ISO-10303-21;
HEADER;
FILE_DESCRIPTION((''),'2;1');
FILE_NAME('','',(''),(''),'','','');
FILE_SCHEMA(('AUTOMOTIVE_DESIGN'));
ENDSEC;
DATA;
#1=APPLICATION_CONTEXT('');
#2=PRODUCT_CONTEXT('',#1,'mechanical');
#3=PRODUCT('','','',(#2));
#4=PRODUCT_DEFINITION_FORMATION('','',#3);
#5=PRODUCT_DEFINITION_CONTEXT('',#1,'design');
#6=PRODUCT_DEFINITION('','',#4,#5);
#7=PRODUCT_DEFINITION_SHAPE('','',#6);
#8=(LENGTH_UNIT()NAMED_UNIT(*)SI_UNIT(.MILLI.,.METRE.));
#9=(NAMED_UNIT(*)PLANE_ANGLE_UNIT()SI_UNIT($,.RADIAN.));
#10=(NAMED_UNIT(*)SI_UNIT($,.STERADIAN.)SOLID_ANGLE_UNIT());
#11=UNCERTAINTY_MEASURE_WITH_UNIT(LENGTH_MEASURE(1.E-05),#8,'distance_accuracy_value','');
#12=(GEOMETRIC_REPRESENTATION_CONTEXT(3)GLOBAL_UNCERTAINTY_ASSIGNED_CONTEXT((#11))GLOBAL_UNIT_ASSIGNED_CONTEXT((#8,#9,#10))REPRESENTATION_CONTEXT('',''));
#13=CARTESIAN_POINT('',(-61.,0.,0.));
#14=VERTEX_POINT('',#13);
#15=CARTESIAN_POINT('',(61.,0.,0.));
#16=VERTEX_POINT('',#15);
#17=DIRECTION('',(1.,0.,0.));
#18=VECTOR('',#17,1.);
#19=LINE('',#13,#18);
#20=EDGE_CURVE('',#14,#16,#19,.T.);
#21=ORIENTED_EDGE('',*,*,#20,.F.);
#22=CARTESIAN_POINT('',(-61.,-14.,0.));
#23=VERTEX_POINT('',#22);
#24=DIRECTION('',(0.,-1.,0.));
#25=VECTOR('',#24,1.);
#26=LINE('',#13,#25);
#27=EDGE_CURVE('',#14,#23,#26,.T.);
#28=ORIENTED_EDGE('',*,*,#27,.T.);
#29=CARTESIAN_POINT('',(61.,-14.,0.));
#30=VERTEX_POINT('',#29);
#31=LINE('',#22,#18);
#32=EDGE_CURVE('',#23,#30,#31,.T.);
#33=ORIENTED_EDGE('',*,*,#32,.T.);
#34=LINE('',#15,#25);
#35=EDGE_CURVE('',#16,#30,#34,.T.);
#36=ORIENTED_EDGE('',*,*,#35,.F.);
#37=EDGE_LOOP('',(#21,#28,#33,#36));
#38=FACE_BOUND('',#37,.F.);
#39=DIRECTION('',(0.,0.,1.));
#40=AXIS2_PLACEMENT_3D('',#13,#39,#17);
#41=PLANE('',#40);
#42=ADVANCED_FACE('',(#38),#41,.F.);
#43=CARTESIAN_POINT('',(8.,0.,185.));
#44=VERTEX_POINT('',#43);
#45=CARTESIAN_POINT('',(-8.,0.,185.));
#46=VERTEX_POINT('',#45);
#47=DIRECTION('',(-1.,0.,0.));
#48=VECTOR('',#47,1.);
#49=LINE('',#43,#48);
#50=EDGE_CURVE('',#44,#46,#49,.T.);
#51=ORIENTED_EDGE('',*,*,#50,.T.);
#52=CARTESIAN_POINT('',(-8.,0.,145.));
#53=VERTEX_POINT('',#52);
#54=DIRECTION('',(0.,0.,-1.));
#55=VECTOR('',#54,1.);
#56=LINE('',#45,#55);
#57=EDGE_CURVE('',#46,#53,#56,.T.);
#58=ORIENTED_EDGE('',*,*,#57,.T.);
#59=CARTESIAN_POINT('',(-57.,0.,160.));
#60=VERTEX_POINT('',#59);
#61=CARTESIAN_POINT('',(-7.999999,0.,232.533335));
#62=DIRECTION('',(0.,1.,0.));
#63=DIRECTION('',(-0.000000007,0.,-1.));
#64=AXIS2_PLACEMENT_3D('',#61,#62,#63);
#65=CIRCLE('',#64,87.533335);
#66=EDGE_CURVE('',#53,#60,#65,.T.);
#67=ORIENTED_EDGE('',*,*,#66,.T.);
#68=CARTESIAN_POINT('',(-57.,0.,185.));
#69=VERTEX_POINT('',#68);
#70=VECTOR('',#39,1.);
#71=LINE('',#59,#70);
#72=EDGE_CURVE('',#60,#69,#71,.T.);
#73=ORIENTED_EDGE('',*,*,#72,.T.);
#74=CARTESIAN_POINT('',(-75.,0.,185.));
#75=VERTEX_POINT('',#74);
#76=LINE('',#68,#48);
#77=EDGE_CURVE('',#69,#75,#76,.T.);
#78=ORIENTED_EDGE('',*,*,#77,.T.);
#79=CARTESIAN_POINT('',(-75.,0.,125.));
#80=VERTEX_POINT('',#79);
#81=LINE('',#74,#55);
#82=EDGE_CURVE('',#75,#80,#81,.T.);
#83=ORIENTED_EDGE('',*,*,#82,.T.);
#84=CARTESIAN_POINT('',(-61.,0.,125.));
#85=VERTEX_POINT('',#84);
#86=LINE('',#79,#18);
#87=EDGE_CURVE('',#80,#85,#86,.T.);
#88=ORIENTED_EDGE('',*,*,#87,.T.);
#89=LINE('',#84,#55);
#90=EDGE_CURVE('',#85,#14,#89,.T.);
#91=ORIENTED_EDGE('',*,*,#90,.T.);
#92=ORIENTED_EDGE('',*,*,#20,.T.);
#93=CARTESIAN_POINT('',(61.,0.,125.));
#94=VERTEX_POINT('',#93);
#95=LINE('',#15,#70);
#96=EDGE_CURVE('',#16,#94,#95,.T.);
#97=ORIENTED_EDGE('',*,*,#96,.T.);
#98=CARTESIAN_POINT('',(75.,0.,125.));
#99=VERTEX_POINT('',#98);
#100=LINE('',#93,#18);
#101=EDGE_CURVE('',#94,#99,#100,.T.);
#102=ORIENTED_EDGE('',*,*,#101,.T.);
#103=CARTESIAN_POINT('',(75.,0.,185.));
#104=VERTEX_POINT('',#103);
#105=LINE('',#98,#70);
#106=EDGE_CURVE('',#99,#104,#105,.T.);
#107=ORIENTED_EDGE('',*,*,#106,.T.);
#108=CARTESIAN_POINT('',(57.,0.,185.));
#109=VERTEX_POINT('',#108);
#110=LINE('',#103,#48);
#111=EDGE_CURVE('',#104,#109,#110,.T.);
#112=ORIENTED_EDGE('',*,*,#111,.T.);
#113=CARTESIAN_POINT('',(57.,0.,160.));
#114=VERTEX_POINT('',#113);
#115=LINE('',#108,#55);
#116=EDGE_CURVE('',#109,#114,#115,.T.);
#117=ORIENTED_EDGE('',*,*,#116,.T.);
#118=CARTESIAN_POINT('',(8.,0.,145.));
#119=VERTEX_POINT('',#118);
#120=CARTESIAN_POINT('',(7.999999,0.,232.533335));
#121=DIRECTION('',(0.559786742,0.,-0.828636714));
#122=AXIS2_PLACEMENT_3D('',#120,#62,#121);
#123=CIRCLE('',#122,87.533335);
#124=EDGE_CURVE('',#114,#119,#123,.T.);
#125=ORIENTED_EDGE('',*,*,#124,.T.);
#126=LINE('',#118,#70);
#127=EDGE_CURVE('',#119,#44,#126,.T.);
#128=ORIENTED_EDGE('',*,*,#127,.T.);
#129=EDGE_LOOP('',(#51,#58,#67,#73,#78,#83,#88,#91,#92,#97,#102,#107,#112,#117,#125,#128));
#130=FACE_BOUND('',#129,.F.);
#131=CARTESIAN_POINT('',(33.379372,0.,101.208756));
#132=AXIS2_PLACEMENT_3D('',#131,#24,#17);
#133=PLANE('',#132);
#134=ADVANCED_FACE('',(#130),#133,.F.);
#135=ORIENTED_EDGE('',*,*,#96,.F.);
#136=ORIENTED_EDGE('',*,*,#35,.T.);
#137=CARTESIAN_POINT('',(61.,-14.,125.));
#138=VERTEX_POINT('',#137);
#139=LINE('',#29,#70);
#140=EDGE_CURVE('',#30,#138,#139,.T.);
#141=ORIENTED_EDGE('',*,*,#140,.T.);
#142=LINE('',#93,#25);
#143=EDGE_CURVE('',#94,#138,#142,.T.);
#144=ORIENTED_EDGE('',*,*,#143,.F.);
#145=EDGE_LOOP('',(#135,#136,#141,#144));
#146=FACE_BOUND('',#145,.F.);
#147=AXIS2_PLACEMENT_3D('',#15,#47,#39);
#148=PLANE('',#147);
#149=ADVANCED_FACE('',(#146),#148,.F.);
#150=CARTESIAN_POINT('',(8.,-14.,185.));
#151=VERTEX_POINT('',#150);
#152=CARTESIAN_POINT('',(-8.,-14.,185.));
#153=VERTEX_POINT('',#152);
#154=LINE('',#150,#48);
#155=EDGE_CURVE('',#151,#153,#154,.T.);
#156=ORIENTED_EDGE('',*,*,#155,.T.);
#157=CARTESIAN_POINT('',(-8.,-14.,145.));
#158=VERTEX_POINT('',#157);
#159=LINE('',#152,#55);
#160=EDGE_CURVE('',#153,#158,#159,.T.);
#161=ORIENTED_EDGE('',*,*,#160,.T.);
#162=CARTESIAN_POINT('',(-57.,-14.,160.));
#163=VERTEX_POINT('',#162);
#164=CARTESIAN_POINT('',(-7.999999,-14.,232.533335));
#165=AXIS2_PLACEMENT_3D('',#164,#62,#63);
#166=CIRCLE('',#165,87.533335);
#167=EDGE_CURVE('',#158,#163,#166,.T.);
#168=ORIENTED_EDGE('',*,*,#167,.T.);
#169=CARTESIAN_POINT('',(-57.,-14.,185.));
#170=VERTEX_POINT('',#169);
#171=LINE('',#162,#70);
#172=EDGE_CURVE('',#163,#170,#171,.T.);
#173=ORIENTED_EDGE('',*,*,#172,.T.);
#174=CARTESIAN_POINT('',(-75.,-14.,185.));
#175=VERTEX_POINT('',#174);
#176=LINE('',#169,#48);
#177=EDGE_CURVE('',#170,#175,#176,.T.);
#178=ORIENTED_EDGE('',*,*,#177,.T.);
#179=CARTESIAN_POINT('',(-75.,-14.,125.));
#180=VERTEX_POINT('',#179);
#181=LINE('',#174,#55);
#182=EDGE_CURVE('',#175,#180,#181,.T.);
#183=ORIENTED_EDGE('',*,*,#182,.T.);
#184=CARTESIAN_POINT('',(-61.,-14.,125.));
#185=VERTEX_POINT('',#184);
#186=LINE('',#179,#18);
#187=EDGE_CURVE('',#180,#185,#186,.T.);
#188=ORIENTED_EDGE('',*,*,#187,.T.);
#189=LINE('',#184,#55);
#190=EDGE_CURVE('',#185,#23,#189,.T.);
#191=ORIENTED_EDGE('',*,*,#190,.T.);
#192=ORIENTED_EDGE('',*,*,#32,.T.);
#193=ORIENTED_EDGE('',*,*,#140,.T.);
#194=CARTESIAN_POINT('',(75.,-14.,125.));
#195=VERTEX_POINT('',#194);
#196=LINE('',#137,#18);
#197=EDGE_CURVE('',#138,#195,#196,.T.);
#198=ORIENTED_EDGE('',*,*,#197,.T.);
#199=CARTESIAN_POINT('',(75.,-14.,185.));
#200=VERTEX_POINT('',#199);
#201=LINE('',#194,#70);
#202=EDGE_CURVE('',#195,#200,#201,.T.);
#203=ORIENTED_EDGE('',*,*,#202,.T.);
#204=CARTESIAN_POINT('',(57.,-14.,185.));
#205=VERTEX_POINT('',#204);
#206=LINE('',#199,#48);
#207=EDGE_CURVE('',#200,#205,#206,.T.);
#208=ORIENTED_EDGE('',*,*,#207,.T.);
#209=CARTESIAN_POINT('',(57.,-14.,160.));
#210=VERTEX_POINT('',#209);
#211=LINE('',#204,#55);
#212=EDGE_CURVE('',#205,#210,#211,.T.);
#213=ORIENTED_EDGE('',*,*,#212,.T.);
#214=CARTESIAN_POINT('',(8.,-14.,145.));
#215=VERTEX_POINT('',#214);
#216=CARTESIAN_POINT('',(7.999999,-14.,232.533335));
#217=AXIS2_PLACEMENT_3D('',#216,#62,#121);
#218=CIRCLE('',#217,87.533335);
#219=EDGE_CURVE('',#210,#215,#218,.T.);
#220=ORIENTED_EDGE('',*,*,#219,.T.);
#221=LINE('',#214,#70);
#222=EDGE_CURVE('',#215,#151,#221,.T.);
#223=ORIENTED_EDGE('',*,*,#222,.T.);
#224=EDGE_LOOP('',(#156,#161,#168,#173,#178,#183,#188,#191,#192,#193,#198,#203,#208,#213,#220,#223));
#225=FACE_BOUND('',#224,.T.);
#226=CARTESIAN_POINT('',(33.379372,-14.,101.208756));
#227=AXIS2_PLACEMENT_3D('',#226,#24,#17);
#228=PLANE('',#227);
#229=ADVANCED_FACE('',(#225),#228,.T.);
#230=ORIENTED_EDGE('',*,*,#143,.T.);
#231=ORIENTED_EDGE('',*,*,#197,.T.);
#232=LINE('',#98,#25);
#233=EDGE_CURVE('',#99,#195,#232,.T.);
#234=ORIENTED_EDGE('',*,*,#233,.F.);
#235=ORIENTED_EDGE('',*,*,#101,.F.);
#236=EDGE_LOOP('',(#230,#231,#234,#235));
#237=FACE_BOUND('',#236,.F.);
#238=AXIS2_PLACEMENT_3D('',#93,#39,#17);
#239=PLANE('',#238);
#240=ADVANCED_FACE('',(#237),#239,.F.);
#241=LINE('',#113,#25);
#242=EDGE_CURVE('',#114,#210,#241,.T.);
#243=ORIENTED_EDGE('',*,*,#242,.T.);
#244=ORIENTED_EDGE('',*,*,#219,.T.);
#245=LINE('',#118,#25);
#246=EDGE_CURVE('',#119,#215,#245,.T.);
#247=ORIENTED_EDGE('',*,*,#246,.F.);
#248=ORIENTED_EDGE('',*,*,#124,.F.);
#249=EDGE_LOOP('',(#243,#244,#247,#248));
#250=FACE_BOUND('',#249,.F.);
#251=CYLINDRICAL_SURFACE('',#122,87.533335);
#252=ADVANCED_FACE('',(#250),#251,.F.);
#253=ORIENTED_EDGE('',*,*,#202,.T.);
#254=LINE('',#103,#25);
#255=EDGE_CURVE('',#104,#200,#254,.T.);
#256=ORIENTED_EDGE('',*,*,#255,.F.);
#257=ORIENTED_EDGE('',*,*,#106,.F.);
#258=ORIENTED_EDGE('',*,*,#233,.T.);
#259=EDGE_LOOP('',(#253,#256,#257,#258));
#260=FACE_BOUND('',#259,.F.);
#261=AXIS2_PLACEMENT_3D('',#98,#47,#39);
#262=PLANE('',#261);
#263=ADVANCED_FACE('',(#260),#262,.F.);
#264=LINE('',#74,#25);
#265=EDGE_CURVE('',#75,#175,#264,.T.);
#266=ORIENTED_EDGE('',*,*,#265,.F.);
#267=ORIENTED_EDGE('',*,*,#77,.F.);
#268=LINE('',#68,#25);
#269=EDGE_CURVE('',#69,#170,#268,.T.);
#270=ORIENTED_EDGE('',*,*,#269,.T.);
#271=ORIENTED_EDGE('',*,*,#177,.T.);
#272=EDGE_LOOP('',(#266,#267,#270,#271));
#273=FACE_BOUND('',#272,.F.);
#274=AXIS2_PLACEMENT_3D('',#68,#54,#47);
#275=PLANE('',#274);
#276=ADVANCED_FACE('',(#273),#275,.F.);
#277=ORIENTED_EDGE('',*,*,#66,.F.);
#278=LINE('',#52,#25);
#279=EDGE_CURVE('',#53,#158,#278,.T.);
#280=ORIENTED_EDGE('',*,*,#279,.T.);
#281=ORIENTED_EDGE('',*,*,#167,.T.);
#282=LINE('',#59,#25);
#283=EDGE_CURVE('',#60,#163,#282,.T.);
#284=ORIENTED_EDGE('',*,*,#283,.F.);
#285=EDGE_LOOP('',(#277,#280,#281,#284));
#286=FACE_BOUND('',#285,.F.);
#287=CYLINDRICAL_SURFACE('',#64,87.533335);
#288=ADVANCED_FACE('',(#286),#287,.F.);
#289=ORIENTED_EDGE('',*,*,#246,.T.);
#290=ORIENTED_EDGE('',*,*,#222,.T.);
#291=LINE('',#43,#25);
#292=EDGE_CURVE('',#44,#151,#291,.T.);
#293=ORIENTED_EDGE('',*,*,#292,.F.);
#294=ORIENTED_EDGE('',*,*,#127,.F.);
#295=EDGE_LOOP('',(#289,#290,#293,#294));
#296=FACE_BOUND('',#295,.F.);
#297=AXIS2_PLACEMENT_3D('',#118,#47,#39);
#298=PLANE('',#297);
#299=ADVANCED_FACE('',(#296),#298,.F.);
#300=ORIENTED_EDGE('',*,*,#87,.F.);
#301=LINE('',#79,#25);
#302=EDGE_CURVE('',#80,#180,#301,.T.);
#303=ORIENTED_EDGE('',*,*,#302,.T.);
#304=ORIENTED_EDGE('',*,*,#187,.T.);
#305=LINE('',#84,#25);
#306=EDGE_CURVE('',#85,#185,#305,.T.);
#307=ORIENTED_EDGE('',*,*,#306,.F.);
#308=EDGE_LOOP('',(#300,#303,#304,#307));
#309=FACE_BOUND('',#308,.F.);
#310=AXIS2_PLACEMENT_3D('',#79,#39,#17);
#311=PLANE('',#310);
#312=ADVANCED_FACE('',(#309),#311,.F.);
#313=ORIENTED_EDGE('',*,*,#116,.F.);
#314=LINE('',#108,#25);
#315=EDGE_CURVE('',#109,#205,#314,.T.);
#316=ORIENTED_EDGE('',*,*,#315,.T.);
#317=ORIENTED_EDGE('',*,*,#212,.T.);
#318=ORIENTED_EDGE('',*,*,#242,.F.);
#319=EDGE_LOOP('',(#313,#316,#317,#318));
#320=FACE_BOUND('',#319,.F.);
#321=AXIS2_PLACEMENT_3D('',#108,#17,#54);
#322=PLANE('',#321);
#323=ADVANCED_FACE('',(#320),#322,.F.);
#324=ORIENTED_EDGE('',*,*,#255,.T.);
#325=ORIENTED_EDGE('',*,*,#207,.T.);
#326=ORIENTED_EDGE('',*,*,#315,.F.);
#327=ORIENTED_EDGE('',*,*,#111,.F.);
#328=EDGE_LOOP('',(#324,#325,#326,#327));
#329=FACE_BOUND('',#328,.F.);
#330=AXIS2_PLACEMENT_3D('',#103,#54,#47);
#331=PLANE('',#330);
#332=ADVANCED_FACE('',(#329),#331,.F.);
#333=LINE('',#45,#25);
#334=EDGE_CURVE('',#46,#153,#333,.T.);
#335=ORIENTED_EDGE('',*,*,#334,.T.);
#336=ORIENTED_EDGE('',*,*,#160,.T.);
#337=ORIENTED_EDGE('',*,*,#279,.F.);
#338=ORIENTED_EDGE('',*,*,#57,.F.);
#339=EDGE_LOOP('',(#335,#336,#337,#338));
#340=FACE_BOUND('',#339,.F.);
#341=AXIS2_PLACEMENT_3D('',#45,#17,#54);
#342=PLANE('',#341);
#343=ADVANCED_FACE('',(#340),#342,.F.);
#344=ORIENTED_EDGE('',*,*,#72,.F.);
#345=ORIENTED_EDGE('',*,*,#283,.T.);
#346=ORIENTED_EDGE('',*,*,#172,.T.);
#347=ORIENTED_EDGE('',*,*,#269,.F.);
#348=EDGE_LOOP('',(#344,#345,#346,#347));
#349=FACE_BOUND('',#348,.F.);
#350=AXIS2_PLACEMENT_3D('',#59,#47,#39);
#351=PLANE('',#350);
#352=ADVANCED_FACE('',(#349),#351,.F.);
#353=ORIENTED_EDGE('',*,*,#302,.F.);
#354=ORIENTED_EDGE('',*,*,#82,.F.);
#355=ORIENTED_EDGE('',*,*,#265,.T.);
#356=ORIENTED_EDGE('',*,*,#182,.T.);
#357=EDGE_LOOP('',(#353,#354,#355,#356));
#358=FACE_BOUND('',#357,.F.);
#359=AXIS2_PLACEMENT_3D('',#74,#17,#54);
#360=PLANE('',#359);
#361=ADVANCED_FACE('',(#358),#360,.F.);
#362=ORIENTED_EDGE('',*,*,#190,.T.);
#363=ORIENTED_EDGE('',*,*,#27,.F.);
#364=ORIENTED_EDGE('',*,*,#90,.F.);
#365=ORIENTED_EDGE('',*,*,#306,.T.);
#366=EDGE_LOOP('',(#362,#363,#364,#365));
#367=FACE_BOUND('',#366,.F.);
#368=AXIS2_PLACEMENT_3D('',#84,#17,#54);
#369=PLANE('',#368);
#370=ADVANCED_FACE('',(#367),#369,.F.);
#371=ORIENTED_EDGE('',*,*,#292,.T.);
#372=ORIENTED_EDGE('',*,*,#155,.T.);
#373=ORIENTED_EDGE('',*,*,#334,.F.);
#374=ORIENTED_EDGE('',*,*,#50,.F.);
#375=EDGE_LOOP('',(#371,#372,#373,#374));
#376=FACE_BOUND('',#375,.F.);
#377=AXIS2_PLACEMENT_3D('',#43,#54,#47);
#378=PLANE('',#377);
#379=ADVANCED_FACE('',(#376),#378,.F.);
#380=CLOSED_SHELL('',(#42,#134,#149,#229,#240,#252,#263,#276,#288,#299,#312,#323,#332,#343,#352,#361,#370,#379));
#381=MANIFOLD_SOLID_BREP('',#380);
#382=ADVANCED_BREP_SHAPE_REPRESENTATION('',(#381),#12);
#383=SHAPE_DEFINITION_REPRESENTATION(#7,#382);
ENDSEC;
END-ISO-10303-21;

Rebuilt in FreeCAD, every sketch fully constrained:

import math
import FreeCAD as App
import Part
import Sketcher
Q = App.Units.Quantity

doc = App.newDocument("Part")
params = doc.addObject("Spreadsheet::Sheet", "Params")
for row, (alias, value) in enumerate([
    ("sketch1_width", "14 mm"),
    ("sketch1_width2", "18 mm"),
    ("sketch1_width3", "16 mm"),
    ("sketch1_width4", "122 mm"),
    ("sketch1_height", "125 mm"),
    ("pad1_length", "14 mm"),
], start=1):
    params.set(f"A{row}", alias)
    params.set(f"B{row}", "=" + value)
    params.setAlias(f"B{row}", alias)

body = doc.addObject("PartDesign::Body", "Body")

# Sketch on XZ plane
sketch1 = body.newObject("Sketcher::SketchObject", "Sketch")
sketch1.AttachmentSupport = (doc.getObject("XZ_Plane"), [""])
sketch1.MapMode = "FlatFace"
sketch1.addGeometry([
    Part.LineSegment(App.Vector(61, 0, 0), App.Vector(61, 125, 0)),  # 0
    Part.LineSegment(App.Vector(61, 125, 0), App.Vector(75, 125, 0)),  # 1
    Part.LineSegment(App.Vector(75, 125, 0), App.Vector(75, 185, 0)),  # 2
    Part.LineSegment(App.Vector(75, 185, 0), App.Vector(57, 185, 0)),  # 3
    Part.LineSegment(App.Vector(57, 185, 0), App.Vector(57, 160, 0)),  # 4
    Part.ArcOfCircle(Part.Circle(App.Vector(8, 233, 0), App.Vector(0, 0, 1), 88), math.radians(-90), math.radians(-56)),  # 5
    Part.LineSegment(App.Vector(8, 145, 0), App.Vector(8, 185, 0)),  # 6
    Part.LineSegment(App.Vector(8, 185, 0), App.Vector(-8, 185, 0)),  # 7
    Part.LineSegment(App.Vector(-8, 185, 0), App.Vector(-8, 145, 0)),  # 8
    Part.ArcOfCircle(Part.Circle(App.Vector(-8, 233, 0), App.Vector(0, 0, 1), 88), math.radians(-124), math.radians(-90)),  # 9
    Part.LineSegment(App.Vector(-57, 160, 0), App.Vector(-57, 185, 0)),  # 10
    Part.LineSegment(App.Vector(-57, 185, 0), App.Vector(-75, 185, 0)),  # 11
    Part.LineSegment(App.Vector(-75, 185, 0), App.Vector(-75, 125, 0)),  # 12
    Part.LineSegment(App.Vector(-75, 125, 0), App.Vector(-61, 125, 0)),  # 13
    Part.LineSegment(App.Vector(-61, 125, 0), App.Vector(-61, 0, 0)),  # 14
    Part.LineSegment(App.Vector(-61, 0, 0), App.Vector(61, 0, 0)),  # 15
], False)
sketch1.addConstraint([
    Sketcher.Constraint("Coincident", 0, 2, 1, 1),
    Sketcher.Constraint("Coincident", 1, 2, 2, 1),
    Sketcher.Constraint("Coincident", 2, 2, 3, 1),
    Sketcher.Constraint("Coincident", 3, 2, 4, 1),
    Sketcher.Constraint("Coincident", 4, 2, 5, 2),
    Sketcher.Constraint("Coincident", 5, 1, 6, 1),
    Sketcher.Constraint("Coincident", 6, 2, 7, 1),
    Sketcher.Constraint("Coincident", 7, 2, 8, 1),
    Sketcher.Constraint("Coincident", 8, 2, 9, 2),
    Sketcher.Constraint("Coincident", 9, 1, 10, 1),
    Sketcher.Constraint("Coincident", 10, 2, 11, 1),
    Sketcher.Constraint("Coincident", 11, 2, 12, 1),
    Sketcher.Constraint("Coincident", 12, 2, 13, 1),
    Sketcher.Constraint("Coincident", 13, 2, 14, 1),
    Sketcher.Constraint("Coincident", 14, 2, 15, 1),
    Sketcher.Constraint("Coincident", 15, 2, 0, 1),
    Sketcher.Constraint("Vertical", 0),
    Sketcher.Constraint("Horizontal", 1),
    Sketcher.Constraint("Vertical", 2),
    Sketcher.Constraint("Horizontal", 3),
    Sketcher.Constraint("Vertical", 4),
    Sketcher.Constraint("Vertical", 6),
    Sketcher.Constraint("Horizontal", 7),
    Sketcher.Constraint("Vertical", 8),
    Sketcher.Constraint("Vertical", 10),
    Sketcher.Constraint("Horizontal", 11),
    Sketcher.Constraint("Vertical", 12),
    Sketcher.Constraint("Horizontal", 13),
    Sketcher.Constraint("Vertical", 14),
    Sketcher.Constraint("Horizontal", 15),
    Sketcher.Constraint("Equal", 5, 9),
    Sketcher.Constraint("Symmetric", 14, 2, 15, 2, -1, 1),
    Sketcher.Constraint("Symmetric", 5, 3, 9, 3, -2),
    Sketcher.Constraint("Symmetric", 3, 2, 10, 2, -2),
    Sketcher.Constraint("Symmetric", 1, 2, 12, 2, -2),
    Sketcher.Constraint("Horizontal", 3, 2, 6, 2),
    Sketcher.Constraint("Vertical", 9, 3, 7, 2),
    Sketcher.Constraint("DistanceX", 1, 1, 1, 2, Q("14 mm")),
    Sketcher.Constraint("DistanceX", 3, 2, 3, 1, Q("18 mm")),
    Sketcher.Constraint("DistanceX", 7, 2, 7, 1, Q("16 mm")),
    Sketcher.Constraint("DistanceX", 15, 1, 15, 2, Q("122 mm")),
    Sketcher.Constraint("DistanceY", 0, 1, 0, 2, Q("125 mm")),
    Sketcher.Constraint("DistanceY", 2, 1, 2, 2, Q("60 mm")),
    Sketcher.Constraint("DistanceY", 4, 2, 4, 1, Q("25 mm")),
    Sketcher.Constraint("DistanceY", 6, 1, 6, 2, Q("40 mm")),
    Sketcher.Constraint("DistanceX", -1, 1, 5, 3, Q("7.999999 mm")),
])
sketch1.setExpression("Constraints[37]", "Params.sketch1_width")
sketch1.setExpression("Constraints[38]", "Params.sketch1_width2")
sketch1.setExpression("Constraints[39]", "Params.sketch1_width3")
sketch1.setExpression("Constraints[40]", "Params.sketch1_width4")
sketch1.setExpression("Constraints[41]", "Params.sketch1_height")
pad1 = body.newObject("PartDesign::Pad", "Pad")
pad1.Profile = sketch1
pad1.setExpression("Length", "Params.pad1_length")

doc.recompute()
